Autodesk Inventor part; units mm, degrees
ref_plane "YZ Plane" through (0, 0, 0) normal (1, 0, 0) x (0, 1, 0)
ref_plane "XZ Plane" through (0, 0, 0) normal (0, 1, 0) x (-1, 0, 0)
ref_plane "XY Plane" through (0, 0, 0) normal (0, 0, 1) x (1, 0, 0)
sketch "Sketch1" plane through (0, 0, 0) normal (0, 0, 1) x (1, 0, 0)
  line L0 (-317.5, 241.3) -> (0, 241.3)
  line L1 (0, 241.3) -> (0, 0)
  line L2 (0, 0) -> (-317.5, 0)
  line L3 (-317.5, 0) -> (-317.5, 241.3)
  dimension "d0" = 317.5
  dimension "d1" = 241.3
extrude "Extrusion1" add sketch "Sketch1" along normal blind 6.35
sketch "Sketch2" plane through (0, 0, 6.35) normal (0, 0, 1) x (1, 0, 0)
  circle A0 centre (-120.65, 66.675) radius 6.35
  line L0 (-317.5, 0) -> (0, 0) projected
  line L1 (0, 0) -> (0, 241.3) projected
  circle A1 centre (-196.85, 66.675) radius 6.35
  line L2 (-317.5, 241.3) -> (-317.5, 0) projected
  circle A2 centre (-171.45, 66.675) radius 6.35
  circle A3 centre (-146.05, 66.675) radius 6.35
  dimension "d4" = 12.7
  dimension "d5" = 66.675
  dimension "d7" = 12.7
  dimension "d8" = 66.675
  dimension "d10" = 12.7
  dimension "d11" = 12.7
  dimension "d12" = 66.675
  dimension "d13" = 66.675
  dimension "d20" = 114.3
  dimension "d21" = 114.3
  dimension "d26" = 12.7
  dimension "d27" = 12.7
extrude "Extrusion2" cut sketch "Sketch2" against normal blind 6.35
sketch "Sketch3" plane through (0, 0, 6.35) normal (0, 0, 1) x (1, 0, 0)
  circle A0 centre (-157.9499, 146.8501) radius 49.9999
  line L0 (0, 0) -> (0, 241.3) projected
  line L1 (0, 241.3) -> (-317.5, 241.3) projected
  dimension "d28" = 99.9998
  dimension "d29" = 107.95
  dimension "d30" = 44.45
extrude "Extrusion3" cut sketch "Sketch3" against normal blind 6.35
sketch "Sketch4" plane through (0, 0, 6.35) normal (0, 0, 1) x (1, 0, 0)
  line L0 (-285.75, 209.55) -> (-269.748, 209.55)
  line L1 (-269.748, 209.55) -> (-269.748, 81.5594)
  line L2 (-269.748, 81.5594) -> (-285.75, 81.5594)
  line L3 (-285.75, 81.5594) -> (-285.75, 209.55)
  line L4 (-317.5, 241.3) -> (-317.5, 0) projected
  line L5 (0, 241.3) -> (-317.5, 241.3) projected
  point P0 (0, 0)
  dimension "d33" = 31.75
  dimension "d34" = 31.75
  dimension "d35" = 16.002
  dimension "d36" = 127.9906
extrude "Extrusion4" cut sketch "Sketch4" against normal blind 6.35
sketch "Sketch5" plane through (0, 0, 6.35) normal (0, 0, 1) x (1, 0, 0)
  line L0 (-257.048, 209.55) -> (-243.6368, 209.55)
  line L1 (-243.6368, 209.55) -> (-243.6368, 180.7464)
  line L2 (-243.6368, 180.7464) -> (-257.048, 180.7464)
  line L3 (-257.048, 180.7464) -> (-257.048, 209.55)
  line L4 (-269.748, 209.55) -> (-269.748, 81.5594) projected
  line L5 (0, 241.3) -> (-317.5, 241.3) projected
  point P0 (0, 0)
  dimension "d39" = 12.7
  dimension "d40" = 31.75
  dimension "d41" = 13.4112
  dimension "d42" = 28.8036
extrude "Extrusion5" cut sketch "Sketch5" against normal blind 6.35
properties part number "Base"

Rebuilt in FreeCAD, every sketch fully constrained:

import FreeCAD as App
import Part
import Sketcher
from FreeCAD import Vector
Q = App.Units.Quantity


def add_polygon(sketch, points):
    """Adds a closed chain of lines whose ends are joined by coincident constraints."""
    first, n = sketch.GeometryCount, len(points)
    for a, b in zip(points, points[1:] + points[:1]):
        sketch.addGeometry(Part.LineSegment(App.Vector(*a, 0), App.Vector(*b, 0)), False)
    for i in range(n):
        sketch.addConstraint(Sketcher.Constraint("Coincident", first + i, 2, first + (i + 1) % n, 1))

doc = App.newDocument("Part")
body = doc.addObject("PartDesign::Body", "Body")

sketch1 = body.newObject("Sketcher::SketchObject", "Sketch")
sketch1.AttachmentSupport = (doc.getObject("XY_Plane"), [""])
sketch1.MapMode = "FlatFace"
add_polygon(sketch1, [(0, 241), (-318, 241), (-318, 0), (0, 0)])
sketch1.addConstraint([
    Sketcher.Constraint("Horizontal", 0),
    Sketcher.Constraint("Vertical", 1),
    Sketcher.Constraint("Horizontal", 2),
    Sketcher.Constraint("Vertical", 3),
    Sketcher.Constraint("Coincident", 2, 2, -1, 1),
    Sketcher.Constraint("DistanceX", 0, 2, 0, 1, Q("12.5 in")),
    Sketcher.Constraint("DistanceY", 1, 2, 1, 1, Q("9.5 in")),
])
pad1 = body.newObject("PartDesign::Pad", "Pad")
pad1.Profile = sketch1
pad1.Length = Q("0.25 in")

sketch2 = body.newObject("Sketcher::SketchObject", "Sketch001")
sketch2.AttachmentSupport = (doc.getObject("XY_Plane"), [""])
sketch2.MapMode = "FlatFace"
sketch2.AttachmentOffset = App.Placement(Vector(0, 0, 0.25 * 25.4), App.Rotation())
sketch2.addGeometry([
    Part.Circle(Vector(-121, 67, 0), Vector(0, 0, 1), 6),
    Part.Circle(Vector(-197, 67, 0), Vector(0, 0, 1), 6),
    Part.Circle(Vector(-171, 67, 0), Vector(0, 0, 1), 6),
    Part.Circle(Vector(-146, 67, 0), Vector(0, 0, 1), 6),
], False)
sketch2.addConstraint([
    Sketcher.Constraint("Equal", 0, 1),
    Sketcher.Constraint("Equal", 1, 2),
    Sketcher.Constraint("Equal", 2, 3),
    Sketcher.Constraint("Horizontal", 0, 3, 1, 3),
    Sketcher.Constraint("Horizontal", 1, 3, 2, 3),
    Sketcher.Constraint("Horizontal", 2, 3, 3, 3),
    Sketcher.Constraint("Diameter", 0, Q("0.5 in")),
    Sketcher.Constraint("DistanceY", -1, 1, 0, 3, Q("2.625 in")),
    Sketcher.Constraint("DistanceX", 1, 3, 0, 3, Q("3 in")),
    Sketcher.Constraint("DistanceX", 1, 3, 2, 3, Q("1 in")),
    Sketcher.Constraint("DistanceX", 2, 3, 3, 3, Q("1 in")),
    Sketcher.Constraint("DistanceX", 0, 3, -1, 1, Q("4.75 in")),
])
pocket1 = body.newObject("PartDesign::Pocket", "Pocket")
pocket1.Profile = sketch2
pocket1.Length = Q("0.25 in")

sketch3 = body.newObject("Sketcher::SketchObject", "Sketch002")
sketch3.AttachmentSupport = (doc.getObject("XY_Plane"), [""])
sketch3.MapMode = "FlatFace"
sketch3.AttachmentOffset = App.Placement(Vector(0, 0, 0.25 * 25.4), App.Rotation())
sketch3.addGeometry(Part.Circle(Vector(-158, 147, 0), Vector(0, 0, 1), 50), False)
sketch3.addConstraint([
    Sketcher.Constraint("Diameter", 0, Q("3.937 in")),
    Sketcher.Constraint("DistanceX", 0, 3, -1, 1, Q("6.2185 in")),
    Sketcher.Constraint("DistanceY", -1, 1, 0, 3, Q("5.7815 in")),
])
pocket2 = body.newObject("PartDesign::Pocket", "Pocket001")
pocket2.Profile = sketch3
pocket2.Length = Q("0.25 in")

sketch4 = body.newObject("Sketcher::SketchObject", "Sketch003")
sketch4.AttachmentSupport = (doc.getObject("XY_Plane"), [""])
sketch4.MapMode = "FlatFace"
sketch4.AttachmentOffset = App.Placement(Vector(0, 0, 0.25 * 25.4), App.Rotation())
add_polygon(sketch4, [(-270, 210), (-286, 210), (-286, 82), (-270, 82)])
sketch4.addConstraint([
    Sketcher.Constraint("Horizontal", 0),
    Sketcher.Constraint("Vertical", 1),
    Sketcher.Constraint("Horizontal", 2),
    Sketcher.Constraint("Vertical", 3),
    Sketcher.Constraint("DistanceX", 0, 2, 0, 1, Q("0.63 in")),
    Sketcher.Constraint("DistanceY", 1, 2, 1, 1, Q("5.039 in")),
    Sketcher.Constraint("DistanceX", 0, 2, -1, 1, Q("11.25 in")),
    Sketcher.Constraint("DistanceY", -1, 1, 0, 2, Q("8.25 in")),
])
pocket3 = body.newObject("PartDesign::Pocket", "Pocket002")
pocket3.Profile = sketch4
pocket3.Length = Q("0.25 in")

sketch5 = body.newObject("Sketcher::SketchObject", "Sketch004")
sketch5.AttachmentSupport = (doc.getObject("XY_Plane"), [""])
sketch5.MapMode = "FlatFace"
sketch5.AttachmentOffset = App.Placement(Vector(0, 0, 0.25 * 25.4), App.Rotation())
add_polygon(sketch5, [(-244, 210), (-257, 210), (-257, 181), (-244, 181)])
sketch5.addConstraint([
    Sketcher.Constraint("Horizontal", 0),
    Sketcher.Constraint("Vertical", 1),
    Sketcher.Constraint("Horizontal", 2),
    Sketcher.Constraint("Vertical", 3),
    Sketcher.Constraint("DistanceX", 0, 2, 0, 1, Q("0.528 in")),
    Sketcher.Constraint("DistanceY", 1, 2, 1, 1, Q("1.134 in")),
    Sketcher.Constraint("DistanceX", 0, 2, -1, 1, Q("10.12 in")),
    Sketcher.Constraint("DistanceY", -1, 1, 0, 2, Q("8.25 in")),
])
pocket4 = body.newObject("PartDesign::Pocket", "Pocket003")
pocket4.Profile = sketch5
pocket4.Length = Q("0.25 in")

doc.recompute()
